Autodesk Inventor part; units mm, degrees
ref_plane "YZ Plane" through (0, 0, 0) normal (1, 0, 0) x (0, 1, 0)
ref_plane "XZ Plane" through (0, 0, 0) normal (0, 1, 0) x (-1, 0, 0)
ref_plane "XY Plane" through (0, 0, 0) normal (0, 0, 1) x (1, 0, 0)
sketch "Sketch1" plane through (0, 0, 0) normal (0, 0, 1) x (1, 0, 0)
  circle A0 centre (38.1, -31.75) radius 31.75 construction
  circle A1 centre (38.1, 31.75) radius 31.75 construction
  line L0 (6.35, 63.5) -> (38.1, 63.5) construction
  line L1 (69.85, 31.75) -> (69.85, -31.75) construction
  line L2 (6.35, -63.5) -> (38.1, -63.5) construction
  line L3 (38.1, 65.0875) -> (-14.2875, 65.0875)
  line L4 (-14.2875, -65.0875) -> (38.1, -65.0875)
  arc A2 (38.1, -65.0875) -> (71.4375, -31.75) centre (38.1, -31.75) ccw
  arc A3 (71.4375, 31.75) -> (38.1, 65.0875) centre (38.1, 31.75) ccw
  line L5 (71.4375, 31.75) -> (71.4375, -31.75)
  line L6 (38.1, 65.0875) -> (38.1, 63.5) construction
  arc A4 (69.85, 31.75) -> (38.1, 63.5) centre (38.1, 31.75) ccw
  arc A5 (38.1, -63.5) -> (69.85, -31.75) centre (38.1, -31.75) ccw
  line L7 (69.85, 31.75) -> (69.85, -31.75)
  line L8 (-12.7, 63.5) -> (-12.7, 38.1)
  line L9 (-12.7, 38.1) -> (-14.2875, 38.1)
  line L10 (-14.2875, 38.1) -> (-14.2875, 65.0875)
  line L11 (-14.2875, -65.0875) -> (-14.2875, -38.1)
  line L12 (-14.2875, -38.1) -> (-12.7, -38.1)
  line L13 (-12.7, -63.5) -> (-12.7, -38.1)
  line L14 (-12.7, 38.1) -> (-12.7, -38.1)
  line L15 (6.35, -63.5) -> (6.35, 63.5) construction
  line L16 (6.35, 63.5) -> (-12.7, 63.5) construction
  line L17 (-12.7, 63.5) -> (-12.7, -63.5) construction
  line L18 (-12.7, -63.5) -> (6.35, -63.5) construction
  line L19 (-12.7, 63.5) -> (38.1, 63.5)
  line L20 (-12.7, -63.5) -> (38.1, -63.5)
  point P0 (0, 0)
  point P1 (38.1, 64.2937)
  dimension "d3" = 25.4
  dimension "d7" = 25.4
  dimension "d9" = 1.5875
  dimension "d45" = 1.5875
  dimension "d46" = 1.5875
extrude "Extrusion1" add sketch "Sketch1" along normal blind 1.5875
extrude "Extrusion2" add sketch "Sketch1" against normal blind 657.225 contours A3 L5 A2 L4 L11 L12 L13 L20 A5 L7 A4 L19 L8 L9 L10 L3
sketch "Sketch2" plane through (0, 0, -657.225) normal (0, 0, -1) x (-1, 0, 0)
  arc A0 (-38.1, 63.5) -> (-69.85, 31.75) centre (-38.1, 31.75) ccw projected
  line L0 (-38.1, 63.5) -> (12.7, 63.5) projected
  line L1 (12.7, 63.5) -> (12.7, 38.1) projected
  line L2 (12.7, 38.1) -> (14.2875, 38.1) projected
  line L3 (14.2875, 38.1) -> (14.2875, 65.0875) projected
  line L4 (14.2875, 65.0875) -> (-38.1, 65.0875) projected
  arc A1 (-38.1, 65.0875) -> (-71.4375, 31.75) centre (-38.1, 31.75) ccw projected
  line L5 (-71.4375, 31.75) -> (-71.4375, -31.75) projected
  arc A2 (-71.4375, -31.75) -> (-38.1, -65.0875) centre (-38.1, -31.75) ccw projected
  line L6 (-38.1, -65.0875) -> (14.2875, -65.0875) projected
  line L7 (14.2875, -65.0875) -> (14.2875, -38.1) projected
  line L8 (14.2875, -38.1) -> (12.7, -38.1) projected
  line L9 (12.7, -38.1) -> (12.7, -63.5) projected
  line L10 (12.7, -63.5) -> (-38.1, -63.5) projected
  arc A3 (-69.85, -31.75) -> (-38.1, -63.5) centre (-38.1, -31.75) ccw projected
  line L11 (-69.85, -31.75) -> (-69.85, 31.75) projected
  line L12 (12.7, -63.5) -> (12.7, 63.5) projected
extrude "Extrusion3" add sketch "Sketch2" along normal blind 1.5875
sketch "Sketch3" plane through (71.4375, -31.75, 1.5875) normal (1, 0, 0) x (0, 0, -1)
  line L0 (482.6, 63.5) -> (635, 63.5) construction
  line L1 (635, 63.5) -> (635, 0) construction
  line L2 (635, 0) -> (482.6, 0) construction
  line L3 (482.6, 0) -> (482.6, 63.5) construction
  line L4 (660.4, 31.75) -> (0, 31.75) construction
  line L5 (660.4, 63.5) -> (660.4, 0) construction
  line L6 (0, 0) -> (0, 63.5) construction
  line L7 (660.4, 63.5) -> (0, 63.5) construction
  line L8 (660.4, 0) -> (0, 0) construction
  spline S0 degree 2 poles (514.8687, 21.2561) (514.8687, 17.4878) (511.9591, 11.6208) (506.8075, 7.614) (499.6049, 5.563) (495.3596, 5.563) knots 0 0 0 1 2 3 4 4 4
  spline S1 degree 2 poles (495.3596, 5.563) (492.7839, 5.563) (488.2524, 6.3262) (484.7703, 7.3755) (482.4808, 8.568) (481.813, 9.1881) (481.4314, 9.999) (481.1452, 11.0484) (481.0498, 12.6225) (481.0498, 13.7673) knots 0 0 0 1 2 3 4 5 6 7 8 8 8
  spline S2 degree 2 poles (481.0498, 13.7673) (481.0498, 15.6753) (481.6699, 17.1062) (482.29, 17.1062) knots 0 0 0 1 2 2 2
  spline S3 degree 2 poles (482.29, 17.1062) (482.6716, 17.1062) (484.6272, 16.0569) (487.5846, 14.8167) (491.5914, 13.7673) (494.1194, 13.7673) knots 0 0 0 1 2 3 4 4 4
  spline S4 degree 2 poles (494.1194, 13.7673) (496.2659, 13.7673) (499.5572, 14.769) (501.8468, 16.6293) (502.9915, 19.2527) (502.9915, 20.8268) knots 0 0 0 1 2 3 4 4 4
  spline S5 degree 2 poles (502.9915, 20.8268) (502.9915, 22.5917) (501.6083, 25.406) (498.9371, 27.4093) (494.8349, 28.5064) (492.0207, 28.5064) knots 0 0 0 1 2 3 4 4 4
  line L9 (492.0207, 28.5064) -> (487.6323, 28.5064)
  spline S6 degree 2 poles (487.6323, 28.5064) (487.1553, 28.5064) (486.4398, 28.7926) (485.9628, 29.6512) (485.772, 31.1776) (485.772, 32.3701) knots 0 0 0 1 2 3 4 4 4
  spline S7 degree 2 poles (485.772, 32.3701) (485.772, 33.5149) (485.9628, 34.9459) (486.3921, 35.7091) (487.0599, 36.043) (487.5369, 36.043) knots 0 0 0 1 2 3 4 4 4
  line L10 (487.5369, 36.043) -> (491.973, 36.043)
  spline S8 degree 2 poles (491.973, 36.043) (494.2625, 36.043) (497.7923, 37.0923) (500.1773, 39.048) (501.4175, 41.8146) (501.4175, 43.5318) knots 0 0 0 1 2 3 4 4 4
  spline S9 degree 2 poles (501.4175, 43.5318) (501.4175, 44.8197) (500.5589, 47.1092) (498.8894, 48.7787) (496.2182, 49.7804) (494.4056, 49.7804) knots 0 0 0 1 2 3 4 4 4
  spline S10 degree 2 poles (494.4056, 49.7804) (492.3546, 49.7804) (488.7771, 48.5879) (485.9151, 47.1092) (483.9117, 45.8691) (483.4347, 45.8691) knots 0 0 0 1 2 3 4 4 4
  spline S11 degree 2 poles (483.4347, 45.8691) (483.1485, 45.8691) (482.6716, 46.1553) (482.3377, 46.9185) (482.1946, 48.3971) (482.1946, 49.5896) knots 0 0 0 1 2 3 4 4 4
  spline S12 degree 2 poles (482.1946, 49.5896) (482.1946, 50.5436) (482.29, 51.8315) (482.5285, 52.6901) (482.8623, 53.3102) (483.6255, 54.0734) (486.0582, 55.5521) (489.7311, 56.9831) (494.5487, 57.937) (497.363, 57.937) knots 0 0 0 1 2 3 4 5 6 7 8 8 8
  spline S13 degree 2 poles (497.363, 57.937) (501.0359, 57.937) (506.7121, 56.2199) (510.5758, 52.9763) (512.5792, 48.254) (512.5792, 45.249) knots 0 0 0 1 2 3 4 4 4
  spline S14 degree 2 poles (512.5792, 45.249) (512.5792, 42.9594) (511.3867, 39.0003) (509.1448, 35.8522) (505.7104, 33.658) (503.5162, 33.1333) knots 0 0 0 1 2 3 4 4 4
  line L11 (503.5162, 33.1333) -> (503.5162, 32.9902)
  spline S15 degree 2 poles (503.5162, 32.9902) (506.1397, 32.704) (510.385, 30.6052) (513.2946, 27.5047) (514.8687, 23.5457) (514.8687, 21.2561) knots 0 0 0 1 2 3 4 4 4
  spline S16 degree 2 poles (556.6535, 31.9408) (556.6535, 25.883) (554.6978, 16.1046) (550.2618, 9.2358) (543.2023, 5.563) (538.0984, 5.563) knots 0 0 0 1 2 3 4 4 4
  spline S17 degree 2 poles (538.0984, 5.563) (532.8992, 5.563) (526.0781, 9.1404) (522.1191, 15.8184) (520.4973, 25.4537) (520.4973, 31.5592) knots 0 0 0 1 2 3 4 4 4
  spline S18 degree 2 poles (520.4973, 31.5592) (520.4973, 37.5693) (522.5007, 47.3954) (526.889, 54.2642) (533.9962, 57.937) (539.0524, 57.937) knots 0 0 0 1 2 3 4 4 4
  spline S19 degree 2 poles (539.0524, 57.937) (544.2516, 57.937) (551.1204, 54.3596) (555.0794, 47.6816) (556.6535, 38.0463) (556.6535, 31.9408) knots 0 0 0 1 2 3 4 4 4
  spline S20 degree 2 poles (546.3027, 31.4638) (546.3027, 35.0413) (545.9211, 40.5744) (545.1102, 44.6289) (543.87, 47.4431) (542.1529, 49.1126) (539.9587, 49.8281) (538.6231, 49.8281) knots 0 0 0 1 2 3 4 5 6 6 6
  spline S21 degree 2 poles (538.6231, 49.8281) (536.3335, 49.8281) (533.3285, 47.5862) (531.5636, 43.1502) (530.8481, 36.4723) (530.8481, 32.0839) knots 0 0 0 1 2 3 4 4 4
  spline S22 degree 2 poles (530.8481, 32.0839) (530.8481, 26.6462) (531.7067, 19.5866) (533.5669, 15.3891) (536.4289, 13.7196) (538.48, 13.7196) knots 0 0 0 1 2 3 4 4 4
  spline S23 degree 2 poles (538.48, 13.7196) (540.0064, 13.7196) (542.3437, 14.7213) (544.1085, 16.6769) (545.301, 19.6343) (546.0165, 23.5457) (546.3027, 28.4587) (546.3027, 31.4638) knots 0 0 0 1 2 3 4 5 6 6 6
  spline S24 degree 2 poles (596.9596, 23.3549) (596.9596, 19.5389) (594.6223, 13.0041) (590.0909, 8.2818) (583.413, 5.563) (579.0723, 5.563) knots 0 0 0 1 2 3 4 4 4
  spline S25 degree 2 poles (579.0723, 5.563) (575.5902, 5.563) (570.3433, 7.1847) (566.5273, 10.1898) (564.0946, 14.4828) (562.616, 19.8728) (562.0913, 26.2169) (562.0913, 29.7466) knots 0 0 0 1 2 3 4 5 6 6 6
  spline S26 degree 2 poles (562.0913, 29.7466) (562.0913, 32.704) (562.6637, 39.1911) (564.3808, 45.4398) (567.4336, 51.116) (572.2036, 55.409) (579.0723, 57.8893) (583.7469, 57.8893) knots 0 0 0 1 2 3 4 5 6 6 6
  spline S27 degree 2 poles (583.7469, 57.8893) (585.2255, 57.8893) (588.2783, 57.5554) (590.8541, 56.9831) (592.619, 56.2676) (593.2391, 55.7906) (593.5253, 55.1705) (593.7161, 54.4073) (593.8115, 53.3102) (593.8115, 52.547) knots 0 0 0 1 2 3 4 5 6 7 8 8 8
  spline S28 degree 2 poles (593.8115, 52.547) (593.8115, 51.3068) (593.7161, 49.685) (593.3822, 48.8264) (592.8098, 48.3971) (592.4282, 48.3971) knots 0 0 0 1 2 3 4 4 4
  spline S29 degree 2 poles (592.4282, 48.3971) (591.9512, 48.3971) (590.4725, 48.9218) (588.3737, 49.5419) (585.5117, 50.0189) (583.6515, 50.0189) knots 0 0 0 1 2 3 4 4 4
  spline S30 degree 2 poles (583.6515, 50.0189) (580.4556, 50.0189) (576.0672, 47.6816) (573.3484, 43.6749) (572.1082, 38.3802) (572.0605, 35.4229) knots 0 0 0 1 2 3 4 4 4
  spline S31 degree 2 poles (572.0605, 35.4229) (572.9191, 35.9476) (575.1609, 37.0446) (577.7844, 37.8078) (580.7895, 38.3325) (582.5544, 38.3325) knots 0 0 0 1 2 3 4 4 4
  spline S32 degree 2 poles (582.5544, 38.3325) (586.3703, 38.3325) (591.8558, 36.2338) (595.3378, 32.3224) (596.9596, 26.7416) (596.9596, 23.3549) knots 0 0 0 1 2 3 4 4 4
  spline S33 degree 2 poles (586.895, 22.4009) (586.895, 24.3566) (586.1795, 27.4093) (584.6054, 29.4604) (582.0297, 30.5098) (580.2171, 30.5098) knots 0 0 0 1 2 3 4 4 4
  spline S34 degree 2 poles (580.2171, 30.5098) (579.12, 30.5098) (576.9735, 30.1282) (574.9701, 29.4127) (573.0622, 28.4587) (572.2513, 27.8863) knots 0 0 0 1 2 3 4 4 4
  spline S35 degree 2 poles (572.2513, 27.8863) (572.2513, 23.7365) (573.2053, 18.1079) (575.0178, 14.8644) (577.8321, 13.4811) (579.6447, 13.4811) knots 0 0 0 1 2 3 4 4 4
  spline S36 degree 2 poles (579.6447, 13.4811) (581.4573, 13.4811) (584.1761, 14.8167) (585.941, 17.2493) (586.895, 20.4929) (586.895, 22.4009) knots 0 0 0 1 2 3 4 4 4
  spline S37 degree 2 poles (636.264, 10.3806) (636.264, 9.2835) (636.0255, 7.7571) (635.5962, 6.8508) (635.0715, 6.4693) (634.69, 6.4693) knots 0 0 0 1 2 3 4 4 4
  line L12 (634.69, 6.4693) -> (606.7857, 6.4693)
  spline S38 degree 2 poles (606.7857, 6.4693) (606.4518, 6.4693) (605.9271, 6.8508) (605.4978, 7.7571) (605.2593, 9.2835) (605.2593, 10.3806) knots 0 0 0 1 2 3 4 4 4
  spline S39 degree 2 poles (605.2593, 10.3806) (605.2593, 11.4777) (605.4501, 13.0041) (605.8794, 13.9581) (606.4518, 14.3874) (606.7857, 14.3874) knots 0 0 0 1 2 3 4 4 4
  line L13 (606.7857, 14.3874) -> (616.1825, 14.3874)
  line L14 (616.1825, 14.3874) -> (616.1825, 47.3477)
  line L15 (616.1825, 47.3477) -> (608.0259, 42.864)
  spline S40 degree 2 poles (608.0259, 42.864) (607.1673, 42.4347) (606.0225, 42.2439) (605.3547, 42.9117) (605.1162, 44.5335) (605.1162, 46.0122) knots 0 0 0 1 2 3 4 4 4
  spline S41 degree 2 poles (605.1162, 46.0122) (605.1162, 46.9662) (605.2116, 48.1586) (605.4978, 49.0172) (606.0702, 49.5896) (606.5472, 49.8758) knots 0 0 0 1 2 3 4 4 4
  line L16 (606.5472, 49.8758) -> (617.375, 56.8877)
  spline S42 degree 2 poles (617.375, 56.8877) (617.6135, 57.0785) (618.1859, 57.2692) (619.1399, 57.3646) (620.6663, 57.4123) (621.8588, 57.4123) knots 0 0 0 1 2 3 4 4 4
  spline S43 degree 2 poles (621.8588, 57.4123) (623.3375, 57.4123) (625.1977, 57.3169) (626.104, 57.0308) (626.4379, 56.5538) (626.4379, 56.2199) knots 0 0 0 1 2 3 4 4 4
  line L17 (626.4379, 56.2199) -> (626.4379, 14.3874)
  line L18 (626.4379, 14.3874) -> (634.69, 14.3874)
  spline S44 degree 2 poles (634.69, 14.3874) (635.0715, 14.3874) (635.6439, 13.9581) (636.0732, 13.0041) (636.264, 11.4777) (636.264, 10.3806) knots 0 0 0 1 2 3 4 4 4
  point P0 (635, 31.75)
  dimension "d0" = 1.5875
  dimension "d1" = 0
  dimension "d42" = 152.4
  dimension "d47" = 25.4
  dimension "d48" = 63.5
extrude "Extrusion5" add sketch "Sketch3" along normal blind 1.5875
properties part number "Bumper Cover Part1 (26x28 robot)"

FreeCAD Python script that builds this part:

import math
import FreeCAD as App
import Part
import Sketcher

V = App.Vector
Q = App.Units.Quantity

doc = App.newDocument("Part")
body = doc.addObject("PartDesign::Body", "Body")

sketch1 = body.newObject("Sketcher::SketchObject", "Sketch")
sketch1.AttachmentSupport = (doc.getObject("XY_Plane"), [""])
sketch1.MapMode = "FlatFace"
sketch1.addGeometry(Part.ArcOfCircle(Part.Circle(V(38.1, 31.8, 0), V(0, 0, 1), 33.3), math.radians(0), math.radians(90)), False)
sketch1.addGeometry(Part.LineSegment(V(38.1, 65.1, 0), V(-14.3, 65.1, 0)), False)
sketch1.addGeometry(Part.LineSegment(V(-14.3, 65.1, 0), V(-14.3, 38.1, 0)), False)
sketch1.addGeometry(Part.LineSegment(V(-14.3, 38.1, 0), V(-12.7, 38.1, 0)), False)
sketch1.addGeometry(Part.LineSegment(V(-12.7, 38.1, 0), V(-12.7, -38.1, 0)), False)
sketch1.addGeometry(Part.LineSegment(V(-12.7, -38.1, 0), V(-14.3, -38.1, 0)), False)
sketch1.addGeometry(Part.LineSegment(V(-14.3, -38.1, 0), V(-14.3, -65.1, 0)), False)
sketch1.addGeometry(Part.LineSegment(V(-14.3, -65.1, 0), V(38.1, -65.1, 0)), False)
sketch1.addGeometry(Part.ArcOfCircle(Part.Circle(V(38.1, -31.8, 0), V(0, 0, 1), 33.3), math.radians(-90), math.radians(0)), False)
sketch1.addGeometry(Part.LineSegment(V(71.4, -31.8, 0), V(71.4, 31.8, 0)), False)
sketch1.addConstraint(Sketcher.Constraint("Tangent", 0, 2, 1, 1))
sketch1.addConstraint(Sketcher.Constraint("Coincident", 1, 2, 2, 1))
sketch1.addConstraint(Sketcher.Constraint("Coincident", 2, 2, 3, 1))
sketch1.addConstraint(Sketcher.Constraint("Coincident", 3, 2, 4, 1))
sketch1.addConstraint(Sketcher.Constraint("Coincident", 4, 2, 5, 1))
sketch1.addConstraint(Sketcher.Constraint("Coincident", 5, 2, 6, 1))
sketch1.addConstraint(Sketcher.Constraint("Coincident", 6, 2, 7, 1))
sketch1.addConstraint(Sketcher.Constraint("Tangent", 7, 2, 8, 1))
sketch1.addConstraint(Sketcher.Constraint("Tangent", 8, 2, 9, 1))
sketch1.addConstraint(Sketcher.Constraint("Tangent", 9, 2, 0, 1))
sketch1.addConstraint(Sketcher.Constraint("Horizontal", 1))
sketch1.addConstraint(Sketcher.Constraint("Vertical", 2))
sketch1.addConstraint(Sketcher.Constraint("Horizontal", 3))
sketch1.addConstraint(Sketcher.Constraint("Vertical", 4))
sketch1.addConstraint(Sketcher.Constraint("Horizontal", 5))
sketch1.addConstraint(Sketcher.Constraint("Vertical", 6))
sketch1.addConstraint(Sketcher.Constraint("Horizontal", 7))
sketch1.addConstraint(Sketcher.Constraint("Vertical", 9))
sketch1.addConstraint(Sketcher.Constraint("Equal", 0, 8))
sketch1.addConstraint(Sketcher.Constraint("Symmetric", 2, 2, 5, 2, -1))
sketch1.addConstraint(Sketcher.Constraint("Equal", 2, 6))
sketch1.addConstraint(Sketcher.Constraint("DistanceX", 3, 1, 3, 2, Q("0.0625 in")))
sketch1.addConstraint(Sketcher.Constraint("DistanceY", 4, 2, 4, 1, Q("3 in")))
sketch1.addConstraint(Sketcher.Constraint("DistanceY", 9, 1, 9, 2, Q("2.5 in")))
sketch1.addConstraint(Sketcher.Constraint("Radius", 0, Q("1.3125 in")))
sketch1.addConstraint(Sketcher.Constraint("DistanceX", 3, 2, 0, 3, Q("2 in")))
sketch1.addConstraint(Sketcher.Constraint("DistanceX", -1, 1, 0, 3, Q("1.5 in")))
pad1 = body.newObject("PartDesign::Pad", "Pad")
pad1.Profile = sketch1
pad1.Length = Q("0.0625 in")

sketch2 = body.newObject("Sketcher::SketchObject", "Sketch001")
sketch2.AttachmentSupport = (doc.getObject("XY_Plane"), [""])
sketch2.MapMode = "FlatFace"
sketch2.addGeometry(Part.ArcOfCircle(Part.Circle(V(38.1, 31.8, 0), V(0, 0, 1), 33.3), math.radians(0), math.radians(90)), False)
sketch2.addGeometry(Part.LineSegment(V(38.1, 65.1, 0), V(-14.3, 65.1, 0)), False)
sketch2.addGeometry(Part.LineSegment(V(-14.3, 65.1, 0), V(-14.3, 38.1, 0)), False)
sketch2.addGeometry(Part.LineSegment(V(-14.3, 38.1, 0), V(-12.7, 38.1, 0)), False)
sketch2.addGeometry(Part.LineSegment(V(-12.7, 38.1, 0), V(-12.7, 63.5, 0)), False)
sketch2.addGeometry(Part.LineSegment(V(-12.7, 63.5, 0), V(38.1, 63.5, 0)), False)
sketch2.addGeometry(Part.ArcOfCircle(Part.Circle(V(38.1, 31.8, 0), V(0, 0, 1), 31.8), math.radians(0), math.radians(90)), False)
sketch2.addGeometry(Part.LineSegment(V(69.8, 31.8, 0), V(69.8, -31.8, 0)), False)
sketch2.addGeometry(Part.ArcOfCircle(Part.Circle(V(38.1, -31.8, 0), V(0, 0, 1), 31.8), math.radians(-90), math.radians(0)), False)
sketch2.addGeometry(Part.LineSegment(V(38.1, -63.5, 0), V(-12.7, -63.5, 0)), False)
sketch2.addGeometry(Part.LineSegment(V(-12.7, -63.5, 0), V(-12.7, -38.1, 0)), False)
sketch2.addGeometry(Part.LineSegment(V(-12.7, -38.1, 0), V(-14.3, -38.1, 0)), False)
sketch2.addGeometry(Part.LineSegment(V(-14.3, -38.1, 0), V(-14.3, -65.1, 0)), False)
sketch2.addGeometry(Part.LineSegment(V(-14.3, -65.1, 0), V(38.1, -65.1, 0)), False)
sketch2.addGeometry(Part.ArcOfCircle(Part.Circle(V(38.1, -31.8, 0), V(0, 0, 1), 33.3), math.radians(-90), math.radians(0)), False)
sketch2.addGeometry(Part.LineSegment(V(71.4, -31.8, 0), V(71.4, 31.8, 0)), False)
sketch2.addConstraint(Sketcher.Constraint("Tangent", 0, 2, 1, 1))
sketch2.addConstraint(Sketcher.Constraint("Coincident", 1, 2, 2, 1))
sketch2.addConstraint(Sketcher.Constraint("Coincident", 2, 2, 3, 1))
sketch2.addConstraint(Sketcher.Constraint("Coincident", 3, 2, 4, 1))
sketch2.addConstraint(Sketcher.Constraint("Coincident", 4, 2, 5, 1))
sketch2.addConstraint(Sketcher.Constraint("Tangent", 5, 2, 6, 2))
sketch2.addConstraint(Sketcher.Constraint("Tangent", 6, 1, 7, 1))
sketch2.addConstraint(Sketcher.Constraint("Tangent", 7, 2, 8, 2))
sketch2.addConstraint(Sketcher.Constraint("Tangent", 8, 1, 9, 1))
sketch2.addConstraint(Sketcher.Constraint("Coincident", 9, 2, 10, 1))
sketch2.addConstraint(Sketcher.Constraint("Coincident", 10, 2, 11, 1))
sketch2.addConstraint(Sketcher.Constraint("Coincident", 11, 2, 12, 1))
sketch2.addConstraint(Sketcher.Constraint("Coincident", 12, 2, 13, 1))
sketch2.addConstraint(Sketcher.Constraint("Tangent", 13, 2, 14, 1))
sketch2.addConstraint(Sketcher.Constraint("Tangent", 14, 2, 15, 1))
sketch2.addConstraint(Sketcher.Constraint("Tangent", 15, 2, 0, 1))
sketch2.addConstraint(Sketcher.Constraint("Horizontal", 1))
sketch2.addConstraint(Sketcher.Constraint("Vertical", 2))
sketch2.addConstraint(Sketcher.Constraint("Horizontal", 3))
sketch2.addConstraint(Sketcher.Constraint("Vertical", 4))
sketch2.addConstraint(Sketcher.Constraint("Horizontal", 5))
sketch2.addConstraint(Sketcher.Constraint("Vertical", 7))
sketch2.addConstraint(Sketcher.Constraint("Horizontal", 9))
sketch2.addConstraint(Sketcher.Constraint("Vertical", 10))
sketch2.addConstraint(Sketcher.Constraint("Horizontal", 11))
sketch2.addConstraint(Sketcher.Constraint("Vertical", 12))
sketch2.addConstraint(Sketcher.Constraint("Horizontal", 13))
sketch2.addConstraint(Sketcher.Constraint("Vertical", 15))
sketch2.addConstraint(Sketcher.Constraint("Coincident", 6, 3, 0, 3))
sketch2.addConstraint(Sketcher.Constraint("Coincident", 14, 3, 8, 3))
sketch2.addConstraint(Sketcher.Constraint("Equal", 6, 8))
sketch2.addConstraint(Sketcher.Constraint("Symmetric", 4, 2, 9, 2, -1))
sketch2.addConstraint(Sketcher.Constraint("Symmetric", 2, 2, 11, 2, -1))
sketch2.addConstraint(Sketcher.Constraint("DistanceY", 4, 1, 4, 2, Q("1 in")))
sketch2.addConstraint(Sketcher.Constraint("DistanceX", 3, 1, 3, 2, Q("0.0625 in")))
sketch2.addConstraint(Sketcher.Constraint("DistanceX", 5, 1, 5, 2, Q("2 in")))
sketch2.addConstraint(Sketcher.Constraint("Radius", 6, Q("1.25 in")))
sketch2.addConstraint(Sketcher.Constraint("DistanceY", 7, 2, 7, 1, Q("2.5 in")))
sketch2.addConstraint(Sketcher.Constraint("Radius", 0, Q("1.3125 in")))
sketch2.addConstraint(Sketcher.Constraint("DistanceX", -1, 1, 0, 3, Q("1.5 in")))
pad2 = body.newObject("PartDesign::Pad", "Pad001")
pad2.Profile = sketch2
pad2.Length = Q("25.875 in")
pad2.Reversed = True

sketch3 = body.newObject("Sketcher::SketchObject", "Sketch002")
sketch3.AttachmentSupport = (doc.getObject("XY_Plane"), [""])
sketch3.MapMode = "FlatFace"
sketch3.AttachmentOffset = App.Placement(V(0, 0, -25.875 * 25.4), App.Rotation())
sketch3.addGeometry(Part.LineSegment(V(-12.7, -38.1, 0), V(-12.7, 38.1, 0)), False)
sketch3.addGeometry(Part.LineSegment(V(-12.7, 38.1, 0), V(-14.3, 38.1, 0)), False)
sketch3.addGeometry(Part.LineSegment(V(-14.3, 38.1, 0), V(-14.3, 65.1, 0)), False)
sketch3.addGeometry(Part.LineSegment(V(-14.3, 65.1, 0), V(38.1, 65.1, 0)), False)
sketch3.addGeometry(Part.ArcOfCircle(Part.Circle(V(38.1, 31.8, 0), V(0, 0, 1), 33.3), math.radians(0), math.radians(90)), False)
sketch3.addGeometry(Part.LineSegment(V(71.4, 31.8, 0), V(71.4, -31.8, 0)), False)
sketch3.addGeometry(Part.ArcOfCircle(Part.Circle(V(38.1, -31.8, 0), V(0, 0, 1), 33.3), math.radians(-90), math.radians(0)), False)
sketch3.addGeometry(Part.LineSegment(V(38.1, -65.1, 0), V(-14.3, -65.1, 0)), False)
sketch3.addGeometry(Part.LineSegment(V(-14.3, -65.1, 0), V(-14.3, -38.1, 0)), False)
sketch3.addGeometry(Part.LineSegment(V(-14.3, -38.1, 0), V(-12.7, -38.1, 0)), False)
sketch3.addConstraint(Sketcher.Constraint("Coincident", 0, 2, 1, 1))
sketch3.addConstraint(Sketcher.Constraint("Coincident", 1, 2, 2, 1))
sketch3.addConstraint(Sketcher.Constraint("Coincident", 2, 2, 3, 1))
sketch3.addConstraint(Sketcher.Constraint("Tangent", 3, 2, 4, 2))
sketch3.addConstraint(Sketcher.Constraint("Tangent", 4, 1, 5, 1))
sketch3.addConstraint(Sketcher.Constraint("Tangent", 5, 2, 6, 2))
sketch3.addConstraint(Sketcher.Constraint("Tangent", 6, 1, 7, 1))
sketch3.addConstraint(Sketcher.Constraint("Coincident", 7, 2, 8, 1))
sketch3.addConstraint(Sketcher.Constraint("Coincident", 8, 2, 9, 1))
sketch3.addConstraint(Sketcher.Constraint("Coincident", 9, 2, 0, 1))
sketch3.addConstraint(Sketcher.Constraint("Vertical", 0))
sketch3.addConstraint(Sketcher.Constraint("Horizontal", 1))
sketch3.addConstraint(Sketcher.Constraint("Vertical", 2))
sketch3.addConstraint(Sketcher.Constraint("Horizontal", 3))
sketch3.addConstraint(Sketcher.Constraint("Vertical", 5))
sketch3.addConstraint(Sketcher.Constraint("Horizontal", 7))
sketch3.addConstraint(Sketcher.Constraint("Vertical", 8))
sketch3.addConstraint(Sketcher.Constraint("Horizontal", 9))
sketch3.addConstraint(Sketcher.Constraint("Equal", 4, 6))
sketch3.addConstraint(Sketcher.Constraint("Symmetric", 2, 2, 7, 2, -1))
sketch3.addConstraint(Sketcher.Constraint("Equal", 2, 8))
sketch3.addConstraint(Sketcher.Constraint("DistanceY", 0, 1, 0, 2, Q("3 in")))
sketch3.addConstraint(Sketcher.Constraint("DistanceY", 5, 2, 5, 1, Q("2.5 in")))
sketch3.addConstraint(Sketcher.Constraint("Radius", 4, Q("1.3125 in")))
sketch3.addConstraint(Sketcher.Constraint("DistanceX", 0, 2, 4, 3, Q("2 in")))
sketch3.addConstraint(Sketcher.Constraint("DistanceX", -1, 1, 4, 3, Q("1.5 in")))
sketch3.addConstraint(Sketcher.Constraint("DistanceX", 1, 2, 1, 1, Q("0.0625 in")))
pad3 = body.newObject("PartDesign::Pad", "Pad002")
pad3.Profile = sketch3
pad3.Length = Q("0.0625 in")
pad3.Reversed = True

sketch4 = body.newObject("Sketcher::SketchObject", "Sketch003")
sketch4.AttachmentSupport = (doc.getObject("YZ_Plane"), [""])
sketch4.MapMode = "FlatFace"
sketch4.AttachmentOffset = App.Placement(V(0, 0, 2.8125 * 25.4), App.Rotation())
sketch4.addGeometry(Part.BSplineCurve([V(-10.4939, -513.2812, 0), V(-14.2622, -513.2812, 0), V(-20.1292, -510.3716, 0), V(-24.136, -505.22, 0), V(-26.187, -498.0174, 0), V(-26.187, -493.7721, 0)], [3, 1, 1, 1, 3], [0, 1, 2, 3, 4], False, 2, [1, 1, 1, 1, 1, 1], False), False)
sketch4.addGeometry(Part.BSplineCurve([V(1.2402, -501.9287, 0), V(0.954, -504.5522, 0), V(-1.1448, -508.7975, 0), V(-4.2453, -511.7071, 0), V(-8.2043, -513.2812, 0), V(-10.4939, -513.2812, 0)], [3, 1, 1, 1, 3], [0, 1, 2, 3, 4], False, 2, [1, 1, 1, 1, 1, 1], False), False)
sketch4.addGeometry(Part.LineSegment(V(1.2402, -501.9287, 0), V(1.3833, -501.9287, 0)), False)
sketch4.addGeometry(Part.BSplineCurve([V(13.499, -510.9917, 0), V(11.2094, -510.9917, 0), V(7.2503, -509.7992, 0), V(4.1022, -507.5573, 0), V(1.908, -504.1229, 0), V(1.3833, -501.9287, 0)], [3, 1, 1, 1, 3], [0, 1, 2, 3, 4], False, 2, [1, 1, 1, 1, 1, 1], False), False)
sketch4.addGeometry(Part.BSplineCurve([V(26.187, -495.7755, 0), V(26.187, -499.4484, 0), V(24.4699, -505.1246, 0), V(21.2263, -508.9883, 0), V(16.504, -510.9917, 0), V(13.499, -510.9917, 0)], [3, 1, 1, 1, 3], [0, 1, 2, 3, 4], False, 2, [1, 1, 1, 1, 1, 1], False), False)
sketch4.addGeometry(Part.BSplineCurve([V(17.8396, -480.6071, 0), V(18.7936, -480.6071, 0), V(20.0815, -480.7025, 0), V(20.9401, -480.941, 0), V(21.5602, -481.2748, 0), V(22.3234, -482.038, 0), V(23.8021, -484.4707, 0), V(25.2331, -488.1436, 0), V(26.187, -492.9612, 0), V(26.187, -495.7755, 0)], [3, 1, 1, 1, 1, 1, 1, 1, 3], [0, 1, 2, 3, 4, 5, 6, 7, 8], False, 2, [1, 1, 1, 1, 1, 1, 1, 1, 1, 1], False), False)
sketch4.addGeometry(Part.BSplineCurve([V(14.1191, -481.8472, 0), V(14.1191, -481.561, 0), V(14.4053, -481.0841, 0), V(15.1685, -480.7502, 0), V(16.6471, -480.6071, 0), V(17.8396, -480.6071, 0)], [3, 1, 1, 1, 3], [0, 1, 2, 3, 4], False, 2, [1, 1, 1, 1, 1, 1], False), False)
sketch4.addGeometry(Part.BSplineCurve([V(18.0304, -492.8181, 0), V(18.0304, -490.7671, 0), V(16.8379, -487.1896, 0), V(15.3592, -484.3276, 0), V(14.1191, -482.3242, 0), V(14.1191, -481.8472, 0)], [3, 1, 1, 1, 3], [0, 1, 2, 3, 4], False, 2, [1, 1, 1, 1, 1, 1], False), False)
sketch4.addGeometry(Part.BSplineCurve([V(11.7818, -499.83, 0), V(13.0697, -499.83, 0), V(15.3592, -498.9714, 0), V(17.0287, -497.3019, 0), V(18.0304, -494.6307, 0), V(18.0304, -492.8181, 0)], [3, 1, 1, 1, 3], [0, 1, 2, 3, 4], False, 2, [1, 1, 1, 1, 1, 1], False), False)
sketch4.addGeometry(Part.BSplineCurve([V(4.293, -490.3855, 0), V(4.293, -492.675, 0), V(5.3423, -496.2048, 0), V(7.298, -498.5898, 0), V(10.0646, -499.83, 0), V(11.7818, -499.83, 0)], [3, 1, 1, 1, 3], [0, 1, 2, 3, 4], False, 2, [1, 1, 1, 1, 1, 1], False), False)
sketch4.addGeometry(Part.LineSegment(V(4.293, -490.3855, 0), V(4.293, -485.9494, 0)), False)
sketch4.addGeometry(Part.BSplineCurve([V(0.6201, -484.1845, 0), V(1.7649, -484.1845, 0), V(3.1959, -484.3753, 0), V(3.9591, -484.8046, 0), V(4.293, -485.4724, 0), V(4.293, -485.9494, 0)], [3, 1, 1, 1, 3], [0, 1, 2, 3, 4], False, 2, [1, 1, 1, 1, 1, 1], False), False)
sketch4.addGeometry(Part.BSplineCurve([V(-3.2436, -486.0448, 0), V(-3.2436, -485.5678, 0), V(-2.9574, -484.8523, 0), V(-2.0988, -484.3753, 0), V(-0.5724, -484.1845, 0), V(0.6201, -484.1845, 0)], [3, 1, 1, 1, 3], [0, 1, 2, 3, 4], False, 2, [1, 1, 1, 1, 1, 1], False), False)
sketch4.addGeometry(Part.LineSegment(V(-3.2436, -486.0448, 0), V(-3.2436, -490.4332, 0)), False)
sketch4.addGeometry(Part.BSplineCurve([V(-10.9232, -501.404, 0), V(-9.1583, -501.404, 0), V(-6.344, -500.0208, 0), V(-4.3407, -497.3496, 0), V(-3.2436, -493.2474, 0), V(-3.2436, -490.4332, 0)], [3, 1, 1, 1, 3], [0, 1, 2, 3, 4], False, 2, [1, 1, 1, 1, 1, 1], False), False)
sketch4.addGeometry(Part.BSplineCurve([V(-17.9827, -492.5319, 0), V(-17.9827, -494.6784, 0), V(-16.981, -497.9697, 0), V(-15.1207, -500.2593, 0), V(-12.4973, -501.404, 0), V(-10.9232, -501.404, 0)], [3, 1, 1, 1, 3], [0, 1, 2, 3, 4], False, 2, [1, 1, 1, 1, 1, 1], False), False)
sketch4.addGeometry(Part.BSplineCurve([V(-14.6438, -480.7025, 0), V(-14.6438, -481.0841, 0), V(-15.6931, -483.0397, 0), V(-16.9333, -485.9971, 0), V(-17.9827, -490.0039, 0), V(-17.9827, -492.5319, 0)], [3, 1, 1, 1, 3], [0, 1, 2, 3, 4], False, 2, [1, 1, 1, 1, 1, 1], False), False)
sketch4.addGeometry(Part.BSplineCurve([V(-17.9827, -479.4623, 0), V(-16.0747, -479.4623, 0), V(-14.6438, -480.0824, 0), V(-14.6438, -480.7025, 0)], [3, 1, 3], [0, 1, 2], False, 2, [1, 1, 1, 1], False), False)
sketch4.addGeometry(Part.BSplineCurve([V(-26.187, -493.7721, 0), V(-26.187, -491.1964, 0), V(-25.4238, -486.6649, 0), V(-24.3745, -483.1828, 0), V(-23.182, -480.8933, 0), V(-22.5619, -480.2255, 0), V(-21.751, -479.8439, 0), V(-20.7016, -479.5577, 0), V(-19.1275, -479.4623, 0), V(-17.9827, -479.4623, 0)], [3, 1, 1, 1, 1, 1, 1, 1, 3], [0, 1, 2, 3, 4, 5, 6, 7, 8], False, 2, [1, 1, 1, 1, 1, 1, 1, 1, 1, 1], False), False)
sketch4.addGeometry(Part.BSplineCurve([V(0.1908, -555.066, 0), V(-5.867, -555.066, 0), V(-15.6454, -553.1103, 0), V(-22.5142, -548.6743, 0), V(-26.187, -541.6148, 0), V(-26.187, -536.5109, 0)], [3, 1, 1, 1, 3], [0, 1, 2, 3, 4], False, 2, [1, 1, 1, 1, 1, 1], False), False)
sketch4.addGeometry(Part.BSplineCurve([V(26.187, -537.4649, 0), V(26.187, -542.6641, 0), V(22.6096, -549.5329, 0), V(15.9316, -553.4919, 0), V(6.2963, -555.066, 0), V(0.1908, -555.066, 0)], [3, 1, 1, 1, 3], [0, 1, 2, 3, 4], False, 2, [1, 1, 1, 1, 1, 1], False), False)
sketch4.addGeometry(Part.BSplineCurve([V(-0.1908, -518.9098, 0), V(5.8193, -518.9098, 0), V(15.6454, -520.9132, 0), V(22.5142, -525.3015, 0), V(26.187, -532.4087, 0), V(26.187, -537.4649, 0)], [3, 1, 1, 1, 3], [0, 1, 2, 3, 4], False, 2, [1, 1, 1, 1, 1, 1], False), False)
sketch4.addGeometry(Part.BSplineCurve([V(-26.187, -536.5109, 0), V(-26.187, -531.3117, 0), V(-22.6096, -524.4906, 0), V(-15.9316, -520.5316, 0), V(-6.2963, -518.9098, 0), V(-0.1908, -518.9098, 0)], [3, 1, 1, 1, 3], [0, 1, 2, 3, 4], False, 2, [1, 1, 1, 1, 1, 1], False), False)
sketch4.addGeometry(Part.BSplineCurve([V(-0.2862, -544.7152, 0), V(3.2913, -544.7152, 0), V(8.8244, -544.3336, 0), V(12.8789, -543.5227, 0), V(15.6931, -542.2825, 0), V(17.3626, -540.5654, 0), V(18.0781, -538.3712, 0), V(18.0781, -537.0356, 0)], [3, 1, 1, 1, 1, 1, 3], [0, 1, 2, 3, 4, 5, 6], False, 2, [1, 1, 1, 1, 1, 1, 1, 1], False), False)
sketch4.addGeometry(Part.BSplineCurve([V(-18.0304, -536.8925, 0), V(-18.0304, -538.4189, 0), V(-17.0287, -540.7562, 0), V(-15.0731, -542.521, 0), V(-12.1157, -543.7135, 0), V(-8.2043, -544.429, 0), V(-3.2913, -544.7152, 0), V(-0.2862, -544.7152, 0)], [3, 1, 1, 1, 1, 1, 3], [0, 1, 2, 3, 4, 5, 6], False, 2, [1, 1, 1, 1, 1, 1, 1, 1], False), False)
sketch4.addGeometry(Part.BSplineCurve([V(0.3339, -529.2606, 0), V(-5.1038, -529.2606, 0), V(-12.1634, -530.1192, 0), V(-16.3609, -531.9794, 0), V(-18.0304, -534.8414, 0), V(-18.0304, -536.8925, 0)], [3, 1, 1, 1, 3], [0, 1, 2, 3, 4], False, 2, [1, 1, 1, 1, 1, 1], False), False)
sketch4.addGeometry(Part.BSplineCurve([V(18.0781, -537.0356, 0), V(18.0781, -534.746, 0), V(15.8362, -531.741, 0), V(11.4002, -529.9761, 0), V(4.7223, -529.2606, 0), V(0.3339, -529.2606, 0)], [3, 1, 1, 1, 3], [0, 1, 2, 3, 4], False, 2, [1, 1, 1, 1, 1, 1], False), False)
sketch4.addGeometry(Part.BSplineCurve([V(-8.3951, -595.3721, 0), V(-12.2111, -595.3721, 0), V(-18.7459, -593.0348, 0), V(-23.4682, -588.5034, 0), V(-26.187, -581.8255, 0), V(-26.187, -577.4848, 0)], [3, 1, 1, 1, 3], [0, 1, 2, 3, 4], False, 2, [1, 1, 1, 1, 1, 1], False), False)
sketch4.addGeometry(Part.BSplineCurve([V(6.5825, -580.9669, 0), V(6.5825, -584.7828, 0), V(4.4838, -590.2683, 0), V(0.5724, -593.7503, 0), V(-5.0084, -595.3721, 0), V(-8.3951, -595.3721, 0)], [3, 1, 1, 1, 3], [0, 1, 2, 3, 4], False, 2, [1, 1, 1, 1, 1, 1], False), False)
sketch4.addGeometry(Part.BSplineCurve([V(3.6729, -570.473, 0), V(4.1976, -571.3316, 0), V(5.2946, -573.5734, 0), V(6.0578, -576.1969, 0), V(6.5825, -579.202, 0), V(6.5825, -580.9669, 0)], [3, 1, 1, 1, 3], [0, 1, 2, 3, 4], False, 2, [1, 1, 1, 1, 1, 1], False), False)
sketch4.addGeometry(Part.BSplineCurve([V(18.2689, -582.064, 0), V(18.2689, -578.8681, 0), V(15.9316, -574.4797, 0), V(11.9249, -571.7609, 0), V(6.6302, -570.5207, 0), V(3.6729, -570.473, 0)], [3, 1, 1, 1, 3], [0, 1, 2, 3, 4], False, 2, [1, 1, 1, 1, 1, 1], False), False)
sketch4.addGeometry(Part.BSplineCurve([V(16.6471, -590.8407, 0), V(16.6471, -590.3637, 0), V(17.1718, -588.885, 0), V(17.7919, -586.7862, 0), V(18.2689, -583.9242, 0), V(18.2689, -582.064, 0)], [3, 1, 1, 1, 3], [0, 1, 2, 3, 4], False, 2, [1, 1, 1, 1, 1, 1], False), False)
sketch4.addGeometry(Part.BSplineCurve([V(20.797, -592.224, 0), V(19.5568, -592.224, 0), V(17.935, -592.1286, 0), V(17.0764, -591.7947, 0), V(16.6471, -591.2223, 0), V(16.6471, -590.8407, 0)], [3, 1, 1, 1, 3], [0, 1, 2, 3, 4], False, 2, [1, 1, 1, 1, 1, 1], False), False)
sketch4.addGeometry(Part.BSplineCurve([V(26.1393, -582.1594, 0), V(26.1393, -583.638, 0), V(25.8054, -586.6908, 0), V(25.2331, -589.2666, 0), V(24.5176, -591.0315, 0), V(24.0406, -591.6516, 0), V(23.4205, -591.9378, 0), V(22.6573, -592.1286, 0), V(21.5602, -592.224, 0), V(20.797, -592.224, 0)], [3, 1, 1, 1, 1, 1, 1, 1, 3], [0, 1, 2, 3, 4, 5, 6, 7, 8], False, 2, [1, 1, 1, 1, 1, 1, 1, 1, 1, 1], False), False)
sketch4.addGeometry(Part.BSplineCurve([V(-2.0034, -560.5038, 0), V(0.954, -560.5038, 0), V(7.4411, -561.0762, 0), V(13.6898, -562.7933, 0), V(19.366, -565.8461, 0), V(23.659, -570.6161, 0), V(26.1393, -577.4848, 0), V(26.1393, -582.1594, 0)], [3, 1, 1, 1, 1, 1, 3], [0, 1, 2, 3, 4, 5, 6], False, 2, [1, 1, 1, 1, 1, 1, 1, 1], False), False)
sketch4.addGeometry(Part.BSplineCurve([V(-26.187, -577.4848, 0), V(-26.187, -574.0027, 0), V(-24.5653, -568.7558, 0), V(-21.5602, -564.9398, 0), V(-17.2672, -562.5071, 0), V(-11.8772, -561.0285, 0), V(-5.5331, -560.5038, 0), V(-2.0034, -560.5038, 0)], [3, 1, 1, 1, 1, 1, 3], [0, 1, 2, 3, 4, 5, 6], False, 2, [1, 1, 1, 1, 1, 1, 1, 1], False), False)
sketch4.addGeometry(Part.BSplineCurve([V(-9.3491, -585.3075, 0), V(-7.3934, -585.3075, 0), V(-4.3407, -584.592, 0), V(-2.2896, -583.0179, 0), V(-1.2402, -580.4422, 0), V(-1.2402, -578.6296, 0)], [3, 1, 1, 1, 3], [0, 1, 2, 3, 4], False, 2, [1, 1, 1, 1, 1, 1], False), False)
sketch4.addGeometry(Part.BSplineCurve([V(-18.2689, -578.0572, 0), V(-18.2689, -579.8698, 0), V(-16.9333, -582.5886, 0), V(-14.5007, -584.3535, 0), V(-11.2571, -585.3075, 0), V(-9.3491, -585.3075, 0)], [3, 1, 1, 1, 3], [0, 1, 2, 3, 4], False, 2, [1, 1, 1, 1, 1, 1], False), False)
sketch4.addGeometry(Part.BSplineCurve([V(-3.8637, -570.6638, 0), V(-8.0135, -570.6638, 0), V(-13.6421, -571.6178, 0), V(-16.8856, -573.4303, 0), V(-18.2689, -576.2446, 0), V(-18.2689, -578.0572, 0)], [3, 1, 1, 1, 3], [0, 1, 2, 3, 4], False, 2, [1, 1, 1, 1, 1, 1], False), False)
sketch4.addGeometry(Part.BSplineCurve([V(-1.2402, -578.6296, 0), V(-1.2402, -577.5325, 0), V(-1.6218, -575.386, 0), V(-2.3373, -573.3826, 0), V(-3.2913, -571.4747, 0), V(-3.8637, -570.6638, 0)], [3, 1, 1, 1, 3], [0, 1, 2, 3, 4], False, 2, [1, 1, 1, 1, 1, 1], False), False)
sketch4.addGeometry(Part.BSplineCurve([V(-21.3694, -634.6765, 0), V(-22.4665, -634.6765, 0), V(-23.9929, -634.438, 0), V(-24.8992, -634.0087, 0), V(-25.2807, -633.484, 0), V(-25.2807, -633.1025, 0)], [3, 1, 1, 1, 3], [0, 1, 2, 3, 4], False, 2, [1, 1, 1, 1, 1, 1], False), False)
sketch4.addGeometry(Part.BSplineCurve([V(-17.3626, -633.1025, 0), V(-17.3626, -633.484, 0), V(-17.7919, -634.0564, 0), V(-18.7459, -634.4857, 0), V(-20.2723, -634.6765, 0), V(-21.3694, -634.6765, 0)], [3, 1, 1, 1, 3], [0, 1, 2, 3, 4], False, 2, [1, 1, 1, 1, 1, 1], False), False)
sketch4.addGeometry(Part.LineSegment(V(-17.3626, -633.1025, 0), V(-17.3626, -624.8504, 0)), False)
sketch4.addGeometry(Part.LineSegment(V(-17.3626, -624.8504, 0), V(24.4699, -624.8504, 0)), False)
sketch4.addGeometry(Part.BSplineCurve([V(25.6623, -620.2713, 0), V(25.6623, -621.75, 0), V(25.5669, -623.6102, 0), V(25.2808, -624.5165, 0), V(24.8038, -624.8504, 0), V(24.4699, -624.8504, 0)], [3, 1, 1, 1, 3], [0, 1, 2, 3, 4], False, 2, [1, 1, 1, 1, 1, 1], False), False)
sketch4.addGeometry(Part.BSplineCurve([V(25.1377, -615.7875, 0), V(25.3285, -616.026, 0), V(25.5192, -616.5984, 0), V(25.6146, -617.5524, 0), V(25.6623, -619.0788, 0), V(25.6623, -620.2713, 0)], [3, 1, 1, 1, 3], [0, 1, 2, 3, 4], False, 2, [1, 1, 1, 1, 1, 1], False), False)
sketch4.addGeometry(Part.LineSegment(V(25.1377, -615.7875, 0), V(18.1258, -604.9597, 0)), False)
sketch4.addGeometry(Part.BSplineCurve([V(14.2622, -603.5287, 0), V(15.2162, -603.5287, 0), V(16.4086, -603.6241, 0), V(17.2672, -603.9103, 0), V(17.8396, -604.4827, 0), V(18.1258, -604.9597, 0)], [3, 1, 1, 1, 3], [0, 1, 2, 3, 4], False, 2, [1, 1, 1, 1, 1, 1], False), False)
sketch4.addGeometry(Part.BSplineCurve([V(11.114, -606.4384, 0), V(10.6847, -605.5798, 0), V(10.4939, -604.435, 0), V(11.1617, -603.7672, 0), V(12.7835, -603.5287, 0), V(14.2622, -603.5287, 0)], [3, 1, 1, 1, 3], [0, 1, 2, 3, 4], False, 2, [1, 1, 1, 1, 1, 1], False), False)
sketch4.addGeometry(Part.LineSegment(V(11.114, -606.4384, 0), V(15.5977, -614.595, 0)), False)
sketch4.addGeometry(Part.LineSegment(V(15.5977, -614.595, 0), V(-17.3626, -614.595, 0)), False)
sketch4.addGeometry(Part.LineSegment(V(-17.3626, -614.595, 0), V(-17.3626, -605.1982, 0)), False)
sketch4.addGeometry(Part.BSplineCurve([V(-21.3694, -603.6718, 0), V(-20.2723, -603.6718, 0), V(-18.7459, -603.8626, 0), V(-17.7919, -604.2919, 0), V(-17.3626, -604.8643, 0), V(-17.3626, -605.1982, 0)], [3, 1, 1, 1, 3], [0, 1, 2, 3, 4], False, 2, [1, 1, 1, 1, 1, 1], False), False)
sketch4.addGeometry(Part.BSplineCurve([V(-25.2807, -605.1982, 0), V(-25.2807, -604.8643, 0), V(-24.8992, -604.3396, 0), V(-23.9929, -603.9103, 0), V(-22.4665, -603.6718, 0), V(-21.3694, -603.6718, 0)], [3, 1, 1, 1, 3], [0, 1, 2, 3, 4], False, 2, [1, 1, 1, 1, 1, 1], False), False)
sketch4.addGeometry(Part.LineSegment(V(-25.2807, -605.1982, 0), V(-25.2807, -633.1025, 0)), False)
sketch4.addConstraint(Sketcher.Constraint("Block", 0))
sketch4.addConstraint(Sketcher.Constraint("Block", 1))
sketch4.addConstraint(Sketcher.Constraint("Block", 3))
sketch4.addConstraint(Sketcher.Constraint("Block", 4))
sketch4.addConstraint(Sketcher.Constraint("Block", 5))
sketch4.addConstraint(Sketcher.Constraint("Block", 6))
sketch4.addConstraint(Sketcher.Constraint("Block", 7))
sketch4.addConstraint(Sketcher.Constraint("Block", 8))
sketch4.addConstraint(Sketcher.Constraint("Block", 9))
sketch4.addConstraint(Sketcher.Constraint("Block", 11))
sketch4.addConstraint(Sketcher.Constraint("Block", 12))
sketch4.addConstraint(Sketcher.Constraint("Block", 14))
sketch4.addConstraint(Sketcher.Constraint("Block", 15))
sketch4.addConstraint(Sketcher.Constraint("Block", 16))
sketch4.addConstraint(Sketcher.Constraint("Block", 17))
sketch4.addConstraint(Sketcher.Constraint("Block", 18))
sketch4.addConstraint(Sketcher.Constraint("Block", 19))
sketch4.addConstraint(Sketcher.Constraint("Block", 20))
sketch4.addConstraint(Sketcher.Constraint("Block", 21))
sketch4.addConstraint(Sketcher.Constraint("Block", 22))
sketch4.addConstraint(Sketcher.Constraint("Block", 23))
sketch4.addConstraint(Sketcher.Constraint("Block", 24))
sketch4.addConstraint(Sketcher.Constraint("Block", 25))
sketch4.addConstraint(Sketcher.Constraint("Block", 26))
sketch4.addConstraint(Sketcher.Constraint("Block", 27))
sketch4.addConstraint(Sketcher.Constraint("Block", 28))
sketch4.addConstraint(Sketcher.Constraint("Block", 29))
sketch4.addConstraint(Sketcher.Constraint("Block", 30))
sketch4.addConstraint(Sketcher.Constraint("Block", 31))
sketch4.addConstraint(Sketcher.Constraint("Block", 32))
sketch4.addConstraint(Sketcher.Constraint("Block", 33))
sketch4.addConstraint(Sketcher.Constraint("Block", 34))
sketch4.addConstraint(Sketcher.Constraint("Block", 35))
sketch4.addConstraint(Sketcher.Constraint("Block", 36))
sketch4.addConstraint(Sketcher.Constraint("Block", 37))
sketch4.addConstraint(Sketcher.Constraint("Block", 38))
sketch4.addConstraint(Sketcher.Constraint("Block", 39))
sketch4.addConstraint(Sketcher.Constraint("Block", 40))
sketch4.addConstraint(Sketcher.Constraint("Block", 41))
sketch4.addConstraint(Sketcher.Constraint("Block", 44))
sketch4.addConstraint(Sketcher.Constraint("Block", 45))
sketch4.addConstraint(Sketcher.Constraint("Block", 47))
sketch4.addConstraint(Sketcher.Constraint("Block", 48))
sketch4.addConstraint(Sketcher.Constraint("Block", 52))
sketch4.addConstraint(Sketcher.Constraint("Block", 53))
sketch4.addConstraint(Sketcher.Constraint("Coincident", 1, 1, 2, 1))
sketch4.addConstraint(Sketcher.Constraint("Coincident", 2, 2, 3, 2))
sketch4.addConstraint(Sketcher.Constraint("Coincident", 9, 1, 10, 1))
sketch4.addConstraint(Sketcher.Constraint("Coincident", 10, 2, 11, 2))
sketch4.addConstraint(Sketcher.Constraint("Coincident", 12, 1, 13, 1))
sketch4.addConstraint(Sketcher.Constraint("Coincident", 13, 2, 14, 2))
sketch4.addConstraint(Sketcher.Constraint("Coincident", 41, 1, 42, 1))
sketch4.addConstraint(Sketcher.Constraint("Coincident", 42, 2, 43, 1))
sketch4.addConstraint(Sketcher.Constraint("Coincident", 43, 2, 44, 2))
sketch4.addConstraint(Sketcher.Constraint("Coincident", 45, 1, 46, 1))
sketch4.addConstraint(Sketcher.Constraint("Coincident", 46, 2, 47, 2))
sketch4.addConstraint(Sketcher.Constraint("Coincident", 48, 1, 49, 1))
sketch4.addConstraint(Sketcher.Constraint("Coincident", 49, 2, 50, 1))
sketch4.addConstraint(Sketcher.Constraint("Coincident", 50, 2, 51, 1))
sketch4.addConstraint(Sketcher.Constraint("Coincident", 51, 2, 52, 2))
sketch4.addConstraint(Sketcher.Constraint("Coincident", 53, 1, 54, 1))
sketch4.addConstraint(Sketcher.Constraint("Coincident", 54, 2, 40, 2))
sketch4.addConstraint(Sketcher.Constraint("Vertical", 42))
sketch4.addConstraint(Sketcher.Constraint("Horizontal", 43))
sketch4.addConstraint(Sketcher.Constraint("Horizontal", 50))
sketch4.addConstraint(Sketcher.Constraint("Vertical", 51))
sketch4.addConstraint(Sketcher.Constraint("DistanceX", 50, 2, 50, 1, 32.9603))
sketch4.addConstraint(Sketcher.Constraint("DistanceY", 51, 1, 51, 2, 9.3968))
pad4 = body.newObject("PartDesign::Pad", "Pad003")
pad4.Profile = sketch4
pad4.Length = Q("0.0625 in")

doc.recompute()
